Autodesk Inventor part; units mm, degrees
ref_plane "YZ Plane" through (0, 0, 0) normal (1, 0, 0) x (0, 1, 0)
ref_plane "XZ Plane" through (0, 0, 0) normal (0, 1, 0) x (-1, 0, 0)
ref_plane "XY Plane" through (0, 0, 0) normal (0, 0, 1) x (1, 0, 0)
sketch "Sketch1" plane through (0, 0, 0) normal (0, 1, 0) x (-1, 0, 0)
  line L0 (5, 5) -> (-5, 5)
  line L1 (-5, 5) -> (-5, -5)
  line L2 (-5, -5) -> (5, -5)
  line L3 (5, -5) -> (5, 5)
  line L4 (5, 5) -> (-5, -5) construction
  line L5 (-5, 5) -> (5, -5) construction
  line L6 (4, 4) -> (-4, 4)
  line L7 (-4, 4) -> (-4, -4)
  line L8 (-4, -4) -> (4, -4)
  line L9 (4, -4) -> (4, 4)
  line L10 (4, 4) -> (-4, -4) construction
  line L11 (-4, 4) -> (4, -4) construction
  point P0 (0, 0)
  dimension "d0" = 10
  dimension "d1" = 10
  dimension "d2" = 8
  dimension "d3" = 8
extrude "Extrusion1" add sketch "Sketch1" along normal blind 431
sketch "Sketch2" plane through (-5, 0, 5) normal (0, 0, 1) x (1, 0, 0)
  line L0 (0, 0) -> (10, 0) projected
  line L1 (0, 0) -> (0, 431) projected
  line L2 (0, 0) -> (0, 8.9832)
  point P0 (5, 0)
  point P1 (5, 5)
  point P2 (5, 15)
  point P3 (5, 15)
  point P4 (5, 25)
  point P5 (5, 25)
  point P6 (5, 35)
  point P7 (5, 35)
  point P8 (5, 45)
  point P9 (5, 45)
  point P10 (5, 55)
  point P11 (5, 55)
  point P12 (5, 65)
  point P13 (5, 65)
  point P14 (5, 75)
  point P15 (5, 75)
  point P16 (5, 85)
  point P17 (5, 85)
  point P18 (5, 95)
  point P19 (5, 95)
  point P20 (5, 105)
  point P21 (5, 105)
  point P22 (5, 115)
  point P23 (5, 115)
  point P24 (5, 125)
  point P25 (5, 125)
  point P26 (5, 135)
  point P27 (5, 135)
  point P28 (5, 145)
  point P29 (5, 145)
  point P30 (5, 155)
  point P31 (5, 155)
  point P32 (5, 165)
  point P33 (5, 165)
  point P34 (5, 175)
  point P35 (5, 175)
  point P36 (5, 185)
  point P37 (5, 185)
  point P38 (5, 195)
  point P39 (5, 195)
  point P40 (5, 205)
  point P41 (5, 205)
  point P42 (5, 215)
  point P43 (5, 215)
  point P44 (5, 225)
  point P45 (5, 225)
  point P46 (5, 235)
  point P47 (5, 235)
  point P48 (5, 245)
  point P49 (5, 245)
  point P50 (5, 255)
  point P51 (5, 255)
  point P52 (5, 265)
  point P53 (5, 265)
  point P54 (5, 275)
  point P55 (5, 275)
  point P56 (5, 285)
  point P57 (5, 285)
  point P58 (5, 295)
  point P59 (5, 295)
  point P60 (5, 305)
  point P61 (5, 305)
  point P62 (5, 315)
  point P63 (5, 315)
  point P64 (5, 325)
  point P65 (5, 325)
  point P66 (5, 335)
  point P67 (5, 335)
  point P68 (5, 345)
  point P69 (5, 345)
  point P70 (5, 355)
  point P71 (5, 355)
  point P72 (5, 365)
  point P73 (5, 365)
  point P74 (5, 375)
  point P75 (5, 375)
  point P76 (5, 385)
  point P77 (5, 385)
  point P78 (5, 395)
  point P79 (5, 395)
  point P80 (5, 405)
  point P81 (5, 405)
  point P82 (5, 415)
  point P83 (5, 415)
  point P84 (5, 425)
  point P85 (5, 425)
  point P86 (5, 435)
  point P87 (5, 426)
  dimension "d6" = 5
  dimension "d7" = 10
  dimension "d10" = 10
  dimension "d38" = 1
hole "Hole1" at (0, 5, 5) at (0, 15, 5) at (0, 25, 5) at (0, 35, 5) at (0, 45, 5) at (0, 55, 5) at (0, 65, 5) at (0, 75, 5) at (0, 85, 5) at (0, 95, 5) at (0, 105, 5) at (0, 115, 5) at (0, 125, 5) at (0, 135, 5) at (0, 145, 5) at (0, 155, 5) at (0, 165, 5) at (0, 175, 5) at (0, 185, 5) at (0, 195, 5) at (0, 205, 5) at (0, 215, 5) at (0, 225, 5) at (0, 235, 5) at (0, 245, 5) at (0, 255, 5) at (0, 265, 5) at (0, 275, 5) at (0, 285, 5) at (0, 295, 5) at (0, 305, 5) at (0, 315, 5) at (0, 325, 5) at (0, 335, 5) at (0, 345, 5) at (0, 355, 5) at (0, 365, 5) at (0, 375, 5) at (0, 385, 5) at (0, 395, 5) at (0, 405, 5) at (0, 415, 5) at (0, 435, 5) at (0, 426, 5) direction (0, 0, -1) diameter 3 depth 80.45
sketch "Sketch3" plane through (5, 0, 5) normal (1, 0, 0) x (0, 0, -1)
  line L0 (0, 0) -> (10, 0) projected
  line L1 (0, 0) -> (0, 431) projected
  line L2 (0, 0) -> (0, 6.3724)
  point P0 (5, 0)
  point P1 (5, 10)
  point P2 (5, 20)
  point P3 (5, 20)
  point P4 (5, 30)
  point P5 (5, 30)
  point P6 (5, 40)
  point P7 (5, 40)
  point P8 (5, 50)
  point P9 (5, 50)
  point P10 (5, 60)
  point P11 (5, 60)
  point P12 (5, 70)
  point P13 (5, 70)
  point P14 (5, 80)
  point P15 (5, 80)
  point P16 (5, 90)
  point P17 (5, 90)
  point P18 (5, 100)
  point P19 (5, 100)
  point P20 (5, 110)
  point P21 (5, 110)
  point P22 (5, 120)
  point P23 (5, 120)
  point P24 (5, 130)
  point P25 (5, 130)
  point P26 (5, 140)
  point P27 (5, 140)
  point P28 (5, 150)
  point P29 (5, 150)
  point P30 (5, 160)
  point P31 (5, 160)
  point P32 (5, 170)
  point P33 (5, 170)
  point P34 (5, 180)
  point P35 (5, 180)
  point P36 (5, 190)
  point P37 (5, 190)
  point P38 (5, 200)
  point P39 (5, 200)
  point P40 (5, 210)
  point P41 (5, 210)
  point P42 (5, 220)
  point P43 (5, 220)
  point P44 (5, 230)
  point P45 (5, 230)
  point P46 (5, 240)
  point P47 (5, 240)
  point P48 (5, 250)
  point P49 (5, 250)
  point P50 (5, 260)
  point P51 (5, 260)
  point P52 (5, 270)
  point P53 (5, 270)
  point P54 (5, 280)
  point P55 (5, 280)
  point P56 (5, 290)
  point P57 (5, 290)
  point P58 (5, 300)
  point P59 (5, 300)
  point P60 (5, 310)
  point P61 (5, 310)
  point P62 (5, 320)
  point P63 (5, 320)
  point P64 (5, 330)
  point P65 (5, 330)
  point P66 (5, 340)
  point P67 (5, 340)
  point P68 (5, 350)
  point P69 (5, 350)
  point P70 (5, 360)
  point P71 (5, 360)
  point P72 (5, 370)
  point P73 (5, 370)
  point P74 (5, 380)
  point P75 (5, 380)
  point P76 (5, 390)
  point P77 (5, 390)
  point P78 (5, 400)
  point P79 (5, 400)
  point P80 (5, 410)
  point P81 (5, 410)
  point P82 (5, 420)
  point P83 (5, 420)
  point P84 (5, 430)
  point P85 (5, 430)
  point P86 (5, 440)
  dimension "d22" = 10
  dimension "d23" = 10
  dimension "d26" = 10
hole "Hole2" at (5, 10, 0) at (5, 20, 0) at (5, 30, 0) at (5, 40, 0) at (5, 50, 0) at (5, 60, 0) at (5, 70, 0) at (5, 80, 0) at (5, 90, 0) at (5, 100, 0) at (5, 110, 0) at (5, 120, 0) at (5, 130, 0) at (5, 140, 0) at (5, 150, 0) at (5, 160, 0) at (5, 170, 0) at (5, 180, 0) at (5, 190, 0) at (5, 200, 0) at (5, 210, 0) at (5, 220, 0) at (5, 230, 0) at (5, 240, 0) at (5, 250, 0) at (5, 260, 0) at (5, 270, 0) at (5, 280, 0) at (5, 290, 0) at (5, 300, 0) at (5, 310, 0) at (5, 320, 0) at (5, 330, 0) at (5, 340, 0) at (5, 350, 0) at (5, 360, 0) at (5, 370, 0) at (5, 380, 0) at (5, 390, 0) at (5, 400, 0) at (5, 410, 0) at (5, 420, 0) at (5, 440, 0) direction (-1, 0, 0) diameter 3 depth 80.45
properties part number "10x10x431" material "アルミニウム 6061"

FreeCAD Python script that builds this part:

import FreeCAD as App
import Part
import Sketcher

V = App.Vector


def add_polygon(sketch, points):
    """Adds a closed chain of lines whose ends are joined by coincident constraints."""
    first, n = sketch.GeometryCount, len(points)
    for a, b in zip(points, points[1:] + points[:1]):
        sketch.addGeometry(Part.LineSegment(App.Vector(*a, 0), App.Vector(*b, 0)), False)
    for i in range(n):
        sketch.addConstraint(Sketcher.Constraint("Coincident", first + i, 2, first + (i + 1) % n, 1))

doc = App.newDocument("Part")
body = doc.addObject("PartDesign::Body", "Body")

# Sketch on XZ plane
sketch1 = body.newObject("Sketcher::SketchObject", "Sketch")
sketch1.AttachmentSupport = (doc.getObject("XZ_Plane"), [""])
sketch1.MapMode = "FlatFace"
add_polygon(sketch1, [(-5, -5), (-5, 5), (5, 5), (5, -5)])  # lines 0-3
add_polygon(sketch1, [(4, 4), (-4, 4), (-4, -4), (4, -4)])  # lines 4-7
sketch1.addConstraint(Sketcher.Constraint("Vertical", 0))
sketch1.addConstraint(Sketcher.Constraint("Horizontal", 1))
sketch1.addConstraint(Sketcher.Constraint("Vertical", 2))
sketch1.addConstraint(Sketcher.Constraint("Horizontal", 3))
sketch1.addConstraint(Sketcher.Constraint("Horizontal", 4))
sketch1.addConstraint(Sketcher.Constraint("Vertical", 5))
sketch1.addConstraint(Sketcher.Constraint("Horizontal", 6))
sketch1.addConstraint(Sketcher.Constraint("Vertical", 7))
sketch1.addConstraint(Sketcher.Constraint("Symmetric", 0, 2, 2, 2, -1, 1))
sketch1.addConstraint(Sketcher.Constraint("Symmetric", 4, 2, 6, 2, -1, 1))
sketch1.addConstraint(Sketcher.Constraint("Equal", 3, 0))
sketch1.addConstraint(Sketcher.Constraint("Equal", 6, 5))
sketch1.addConstraint(Sketcher.Constraint("DistanceX", 1, 1, 1, 2, 10.0))
sketch1.addConstraint(Sketcher.Constraint("DistanceX", 4, 2, 4, 1, 8.0))
pad1 = body.newObject("PartDesign::Pad", "Pad")
pad1.Profile = sketch1
pad1.Length = 431
pad1.Reversed = True

# Sketch on XY plane
sketch2 = body.newObject("Sketcher::SketchObject", "Sketch001")
sketch2.AttachmentSupport = (doc.getObject("XY_Plane"), [""])
sketch2.MapMode = "FlatFace"
sketch2.AttachmentOffset = App.Placement(V(0, 0, 5), App.Rotation())
sketch2.addGeometry(Part.Circle(V(0, 5, 0), V(0, 0, 1), 1.5), False)
sketch2.addGeometry(Part.Circle(V(0, 15, 0), V(0, 0, 1), 1.5), False)
sketch2.addGeometry(Part.Circle(V(0, 25, 0), V(0, 0, 1), 1.5), False)
sketch2.addGeometry(Part.Circle(V(0, 35, 0), V(0, 0, 1), 1.5), False)
sketch2.addGeometry(Part.Circle(V(0, 45, 0), V(0, 0, 1), 1.5), False)
sketch2.addGeometry(Part.Circle(V(0, 55, 0), V(0, 0, 1), 1.5), False)
sketch2.addGeometry(Part.Circle(V(0, 65, 0), V(0, 0, 1), 1.5), False)
sketch2.addGeometry(Part.Circle(V(0, 75, 0), V(0, 0, 1), 1.5), False)
sketch2.addGeometry(Part.Circle(V(0, 85, 0), V(0, 0, 1), 1.5), False)
sketch2.addGeometry(Part.Circle(V(0, 95, 0), V(0, 0, 1), 1.5), False)
sketch2.addGeometry(Part.Circle(V(0, 105, 0), V(0, 0, 1), 1.5), False)
sketch2.addGeometry(Part.Circle(V(0, 115, 0), V(0, 0, 1), 1.5), False)
sketch2.addGeometry(Part.Circle(V(0, 125, 0), V(0, 0, 1), 1.5), False)
sketch2.addGeometry(Part.Circle(V(0, 135, 0), V(0, 0, 1), 1.5), False)
sketch2.addGeometry(Part.Circle(V(0, 145, 0), V(0, 0, 1), 1.5), False)
sketch2.addGeometry(Part.Circle(V(0, 155, 0), V(0, 0, 1), 1.5), False)
sketch2.addGeometry(Part.Circle(V(0, 165, 0), V(0, 0, 1), 1.5), False)
sketch2.addGeometry(Part.Circle(V(0, 175, 0), V(0, 0, 1), 1.5), False)
sketch2.addGeometry(Part.Circle(V(0, 185, 0), V(0, 0, 1), 1.5), False)
sketch2.addGeometry(Part.Circle(V(0, 195, 0), V(0, 0, 1), 1.5), False)
sketch2.addGeometry(Part.Circle(V(0, 205, 0), V(0, 0, 1), 1.5), False)
sketch2.addGeometry(Part.Circle(V(0, 215, 0), V(0, 0, 1), 1.5), False)
sketch2.addGeometry(Part.Circle(V(0, 225, 0), V(0, 0, 1), 1.5), False)
sketch2.addGeometry(Part.Circle(V(0, 235, 0), V(0, 0, 1), 1.5), False)
sketch2.addGeometry(Part.Circle(V(0, 245, 0), V(0, 0, 1), 1.5), False)
sketch2.addGeometry(Part.Circle(V(0, 255, 0), V(0, 0, 1), 1.5), False)
sketch2.addGeometry(Part.Circle(V(0, 265, 0), V(0, 0, 1), 1.5), False)
sketch2.addGeometry(Part.Circle(V(0, 275, 0), V(0, 0, 1), 1.5), False)
sketch2.addGeometry(Part.Circle(V(0, 285, 0), V(0, 0, 1), 1.5), False)
sketch2.addGeometry(Part.Circle(V(0, 295, 0), V(0, 0, 1), 1.5), False)
sketch2.addGeometry(Part.Circle(V(0, 305, 0), V(0, 0, 1), 1.5), False)
sketch2.addGeometry(Part.Circle(V(0, 315, 0), V(0, 0, 1), 1.5), False)
sketch2.addGeometry(Part.Circle(V(0, 325, 0), V(0, 0, 1), 1.5), False)
sketch2.addGeometry(Part.Circle(V(0, 335, 0), V(0, 0, 1), 1.5), False)
sketch2.addGeometry(Part.Circle(V(0, 345, 0), V(0, 0, 1), 1.5), False)
sketch2.addGeometry(Part.Circle(V(0, 355, 0), V(0, 0, 1), 1.5), False)
sketch2.addGeometry(Part.Circle(V(0, 365, 0), V(0, 0, 1), 1.5), False)
sketch2.addGeometry(Part.Circle(V(0, 375, 0), V(0, 0, 1), 1.5), False)
sketch2.addGeometry(Part.Circle(V(0, 385, 0), V(0, 0, 1), 1.5), False)
sketch2.addGeometry(Part.Circle(V(0, 395, 0), V(0, 0, 1), 1.5), False)
sketch2.addGeometry(Part.Circle(V(0, 405, 0), V(0, 0, 1), 1.5), False)
sketch2.addGeometry(Part.Circle(V(0, 415, 0), V(0, 0, 1), 1.5), False)
sketch2.addGeometry(Part.Circle(V(0, 435, 0), V(0, 0, 1), 1.5), False)
sketch2.addGeometry(Part.Circle(V(0, 426, 0), V(0, 0, 1), 1.5), False)
sketch2.addConstraint(Sketcher.Constraint("Equal", 0, 1))
sketch2.addConstraint(Sketcher.Constraint("Equal", 1, 2))
sketch2.addConstraint(Sketcher.Constraint("Equal", 2, 3))
sketch2.addConstraint(Sketcher.Constraint("Equal", 3, 4))
sketch2.addConstraint(Sketcher.Constraint("Equal", 4, 5))
sketch2.addConstraint(Sketcher.Constraint("Equal", 5, 6))
sketch2.addConstraint(Sketcher.Constraint("Equal", 6, 7))
sketch2.addConstraint(Sketcher.Constraint("Equal", 7, 8))
sketch2.addConstraint(Sketcher.Constraint("Equal", 8, 9))
sketch2.addConstraint(Sketcher.Constraint("Equal", 9, 10))
sketch2.addConstraint(Sketcher.Constraint("Equal", 10, 11))
sketch2.addConstraint(Sketcher.Constraint("Equal", 11, 12))
sketch2.addConstraint(Sketcher.Constraint("Equal", 12, 13))
sketch2.addConstraint(Sketcher.Constraint("Equal", 13, 14))
sketch2.addConstraint(Sketcher.Constraint("Equal", 14, 15))
sketch2.addConstraint(Sketcher.Constraint("Equal", 15, 16))
sketch2.addConstraint(Sketcher.Constraint("Equal", 16, 17))
sketch2.addConstraint(Sketcher.Constraint("Equal", 17, 18))
sketch2.addConstraint(Sketcher.Constraint("Equal", 18, 19))
sketch2.addConstraint(Sketcher.Constraint("Equal", 19, 20))
sketch2.addConstraint(Sketcher.Constraint("Equal", 20, 21))
sketch2.addConstraint(Sketcher.Constraint("Equal", 21, 22))
sketch2.addConstraint(Sketcher.Constraint("Equal", 22, 23))
sketch2.addConstraint(Sketcher.Constraint("Equal", 23, 24))
sketch2.addConstraint(Sketcher.Constraint("Equal", 24, 25))
sketch2.addConstraint(Sketcher.Constraint("Equal", 25, 26))
sketch2.addConstraint(Sketcher.Constraint("Equal", 26, 27))
sketch2.addConstraint(Sketcher.Constraint("Equal", 27, 28))
sketch2.addConstraint(Sketcher.Constraint("Equal", 28, 29))
sketch2.addConstraint(Sketcher.Constraint("Equal", 29, 30))
sketch2.addConstraint(Sketcher.Constraint("Equal", 30, 31))
sketch2.addConstraint(Sketcher.Constraint("Equal", 31, 32))
sketch2.addConstraint(Sketcher.Constraint("Equal", 32, 33))
sketch2.addConstraint(Sketcher.Constraint("Equal", 33, 34))
sketch2.addConstraint(Sketcher.Constraint("Equal", 34, 35))
sketch2.addConstraint(Sketcher.Constraint("Equal", 35, 36))
sketch2.addConstraint(Sketcher.Constraint("Equal", 36, 37))
sketch2.addConstraint(Sketcher.Constraint("Equal", 37, 38))
sketch2.addConstraint(Sketcher.Constraint("Equal", 38, 39))
sketch2.addConstraint(Sketcher.Constraint("Equal", 39, 40))
sketch2.addConstraint(Sketcher.Constraint("Equal", 40, 41))
sketch2.addConstraint(Sketcher.Constraint("Equal", 41, 42))
sketch2.addConstraint(Sketcher.Constraint("Equal", 42, 43))
sketch2.addConstraint(Sketcher.Constraint("PointOnObject", 0, 3, -2))
sketch2.addConstraint(Sketcher.Constraint("PointOnObject", 1, 3, -2))
sketch2.addConstraint(Sketcher.Constraint("PointOnObject", 2, 3, -2))
sketch2.addConstraint(Sketcher.Constraint("PointOnObject", 3, 3, -2))
sketch2.addConstraint(Sketcher.Constraint("PointOnObject", 4, 3, -2))
sketch2.addConstraint(Sketcher.Constraint("PointOnObject", 5, 3, -2))
sketch2.addConstraint(Sketcher.Constraint("PointOnObject", 6, 3, -2))
sketch2.addConstraint(Sketcher.Constraint("PointOnObject", 7, 3, -2))
sketch2.addConstraint(Sketcher.Constraint("PointOnObject", 8, 3, -2))
sketch2.addConstraint(Sketcher.Constraint("PointOnObject", 9, 3, -2))
sketch2.addConstraint(Sketcher.Constraint("PointOnObject", 10, 3, -2))
sketch2.addConstraint(Sketcher.Constraint("PointOnObject", 11, 3, -2))
sketch2.addConstraint(Sketcher.Constraint("PointOnObject", 12, 3, -2))
sketch2.addConstraint(Sketcher.Constraint("PointOnObject", 13, 3, -2))
sketch2.addConstraint(Sketcher.Constraint("PointOnObject", 14, 3, -2))
sketch2.addConstraint(Sketcher.Constraint("PointOnObject", 15, 3, -2))
sketch2.addConstraint(Sketcher.Constraint("PointOnObject", 16, 3, -2))
sketch2.addConstraint(Sketcher.Constraint("PointOnObject", 17, 3, -2))
sketch2.addConstraint(Sketcher.Constraint("PointOnObject", 18, 3, -2))
sketch2.addConstraint(Sketcher.Constraint("PointOnObject", 19, 3, -2))
sketch2.addConstraint(Sketcher.Constraint("PointOnObject", 20, 3, -2))
sketch2.addConstraint(Sketcher.Constraint("PointOnObject", 21, 3, -2))
sketch2.addConstraint(Sketcher.Constraint("PointOnObject", 22, 3, -2))
sketch2.addConstraint(Sketcher.Constraint("PointOnObject", 23, 3, -2))
sketch2.addConstraint(Sketcher.Constraint("PointOnObject", 24, 3, -2))
sketch2.addConstraint(Sketcher.Constraint("PointOnObject", 25, 3, -2))
sketch2.addConstraint(Sketcher.Constraint("PointOnObject", 26, 3, -2))
sketch2.addConstraint(Sketcher.Constraint("PointOnObject", 27, 3, -2))
sketch2.addConstraint(Sketcher.Constraint("PointOnObject", 28, 3, -2))
sketch2.addConstraint(Sketcher.Constraint("PointOnObject", 29, 3, -2))
sketch2.addConstraint(Sketcher.Constraint("PointOnObject", 30, 3, -2))
sketch2.addConstraint(Sketcher.Constraint("PointOnObject", 31, 3, -2))
sketch2.addConstraint(Sketcher.Constraint("PointOnObject", 32, 3, -2))
sketch2.addConstraint(Sketcher.Constraint("PointOnObject", 33, 3, -2))
sketch2.addConstraint(Sketcher.Constraint("PointOnObject", 34, 3, -2))
sketch2.addConstraint(Sketcher.Constraint("PointOnObject", 35, 3, -2))
sketch2.addConstraint(Sketcher.Constraint("PointOnObject", 36, 3, -2))
sketch2.addConstraint(Sketcher.Constraint("PointOnObject", 37, 3, -2))
sketch2.addConstraint(Sketcher.Constraint("PointOnObject", 38, 3, -2))
sketch2.addConstraint(Sketcher.Constraint("PointOnObject", 39, 3, -2))
sketch2.addConstraint(Sketcher.Constraint("PointOnObject", 40, 3, -2))
sketch2.addConstraint(Sketcher.Constraint("PointOnObject", 41, 3, -2))
sketch2.addConstraint(Sketcher.Constraint("PointOnObject", 42, 3, -2))
sketch2.addConstraint(Sketcher.Constraint("PointOnObject", 43, 3, -2))
sketch2.addConstraint(Sketcher.Constraint("Diameter", 0, 3.0))
sketch2.addConstraint(Sketcher.Constraint("DistanceY", -1, 1, 0, 3, 5.0))
sketch2.addConstraint(Sketcher.Constraint("DistanceY", -1, 1, 1, 3, 15.0))
sketch2.addConstraint(Sketcher.Constraint("DistanceY", -1, 1, 2, 3, 25.0))
sketch2.addConstraint(Sketcher.Constraint("DistanceY", -1, 1, 3, 3, 35.0))
sketch2.addConstraint(Sketcher.Constraint("DistanceY", -1, 1, 4, 3, 45.0))
sketch2.addConstraint(Sketcher.Constraint("DistanceY", -1, 1, 5, 3, 55.0))
sketch2.addConstraint(Sketcher.Constraint("DistanceY", -1, 1, 6, 3, 65.0))
sketch2.addConstraint(Sketcher.Constraint("DistanceY", -1, 1, 7, 3, 75.0))
sketch2.addConstraint(Sketcher.Constraint("DistanceY", -1, 1, 8, 3, 85.0))
sketch2.addConstraint(Sketcher.Constraint("DistanceY", -1, 1, 9, 3, 95.0))
sketch2.addConstraint(Sketcher.Constraint("DistanceY", -1, 1, 10, 3, 105.0))
sketch2.addConstraint(Sketcher.Constraint("DistanceY", -1, 1, 11, 3, 115.0))
sketch2.addConstraint(Sketcher.Constraint("DistanceY", -1, 1, 12, 3, 125.0))
sketch2.addConstraint(Sketcher.Constraint("DistanceY", -1, 1, 13, 3, 135.0))
sketch2.addConstraint(Sketcher.Constraint("DistanceY", -1, 1, 14, 3, 145.0))
sketch2.addConstraint(Sketcher.Constraint("DistanceY", -1, 1, 15, 3, 155.0))
sketch2.addConstraint(Sketcher.Constraint("DistanceY", -1, 1, 16, 3, 165.0))
sketch2.addConstraint(Sketcher.Constraint("DistanceY", -1, 1, 17, 3, 175.0))
sketch2.addConstraint(Sketcher.Constraint("DistanceY", -1, 1, 18, 3, 185.0))
sketch2.addConstraint(Sketcher.Constraint("DistanceY", -1, 1, 19, 3, 195.0))
sketch2.addConstraint(Sketcher.Constraint("DistanceY", -1, 1, 20, 3, 205.0))
sketch2.addConstraint(Sketcher.Constraint("DistanceY", -1, 1, 21, 3, 215.0))
sketch2.addConstraint(Sketcher.Constraint("DistanceY", -1, 1, 22, 3, 225.0))
sketch2.addConstraint(Sketcher.Constraint("DistanceY", -1, 1, 23, 3, 235.0))
sketch2.addConstraint(Sketcher.Constraint("DistanceY", -1, 1, 24, 3, 245.0))
sketch2.addConstraint(Sketcher.Constraint("DistanceY", -1, 1, 25, 3, 255.0))
sketch2.addConstraint(Sketcher.Constraint("DistanceY", -1, 1, 26, 3, 265.0))
sketch2.addConstraint(Sketcher.Constraint("DistanceY", -1, 1, 27, 3, 275.0))
sketch2.addConstraint(Sketcher.Constraint("DistanceY", -1, 1, 28, 3, 285.0))
sketch2.addConstraint(Sketcher.Constraint("DistanceY", -1, 1, 29, 3, 295.0))
sketch2.addConstraint(Sketcher.Constraint("DistanceY", -1, 1, 30, 3, 305.0))
sketch2.addConstraint(Sketcher.Constraint("DistanceY", -1, 1, 31, 3, 315.0))
sketch2.addConstraint(Sketcher.Constraint("DistanceY", -1, 1, 32, 3, 325.0))
sketch2.addConstraint(Sketcher.Constraint("DistanceY", -1, 1, 33, 3, 335.0))
sketch2.addConstraint(Sketcher.Constraint("DistanceY", -1, 1, 34, 3, 345.0))
sketch2.addConstraint(Sketcher.Constraint("DistanceY", -1, 1, 35, 3, 355.0))
sketch2.addConstraint(Sketcher.Constraint("DistanceY", -1, 1, 36, 3, 365.0))
sketch2.addConstraint(Sketcher.Constraint("DistanceY", -1, 1, 37, 3, 375.0))
sketch2.addConstraint(Sketcher.Constraint("DistanceY", -1, 1, 38, 3, 385.0))
sketch2.addConstraint(Sketcher.Constraint("DistanceY", -1, 1, 39, 3, 395.0))
sketch2.addConstraint(Sketcher.Constraint("DistanceY", -1, 1, 40, 3, 405.0))
sketch2.addConstraint(Sketcher.Constraint("DistanceY", -1, 1, 41, 3, 415.0))
sketch2.addConstraint(Sketcher.Constraint("DistanceY", -1, 1, 42, 3, 435.0))
sketch2.addConstraint(Sketcher.Constraint("DistanceY", -1, 1, 43, 3, 426.0))
doc.recompute()
hole = body.newObject("PartDesign::Hole", "Hole")
hole.Profile = sketch2
hole.ThreadType = "None"
hole.Diameter = 3
hole.DepthType = "Dimension"
hole.Depth = 80.45
hole.DrillPoint = "Flat"

# Sketch on YZ plane
sketch3 = body.newObject("Sketcher::SketchObject", "Sketch002")
sketch3.AttachmentSupport = (doc.getObject("YZ_Plane"), [""])
sketch3.MapMode = "FlatFace"
sketch3.AttachmentOffset = App.Placement(V(0, 0, 5), App.Rotation())
sketch3.addGeometry(Part.Circle(V(10, 0, 0), V(0, 0, 1), 1.5), False)
sketch3.addGeometry(Part.Circle(V(20, 0, 0), V(0, 0, 1), 1.5), False)
sketch3.addGeometry(Part.Circle(V(30, 0, 0), V(0, 0, 1), 1.5), False)
sketch3.addGeometry(Part.Circle(V(40, 0, 0), V(0, 0, 1), 1.5), False)
sketch3.addGeometry(Part.Circle(V(50, 0, 0), V(0, 0, 1), 1.5), False)
sketch3.addGeometry(Part.Circle(V(60, 0, 0), V(0, 0, 1), 1.5), False)
sketch3.addGeometry(Part.Circle(V(70, 0, 0), V(0, 0, 1), 1.5), False)
sketch3.addGeometry(Part.Circle(V(80, 0, 0), V(0, 0, 1), 1.5), False)
sketch3.addGeometry(Part.Circle(V(90, 0, 0), V(0, 0, 1), 1.5), False)
sketch3.addGeometry(Part.Circle(V(100, 0, 0), V(0, 0, 1), 1.5), False)
sketch3.addGeometry(Part.Circle(V(110, 0, 0), V(0, 0, 1), 1.5), False)
sketch3.addGeometry(Part.Circle(V(120, 0, 0), V(0, 0, 1), 1.5), False)
sketch3.addGeometry(Part.Circle(V(130, 0, 0), V(0, 0, 1), 1.5), False)
sketch3.addGeometry(Part.Circle(V(140, 0, 0), V(0, 0, 1), 1.5), False)
sketch3.addGeometry(Part.Circle(V(150, 0, 0), V(0, 0, 1), 1.5), False)
sketch3.addGeometry(Part.Circle(V(160, 0, 0), V(0, 0, 1), 1.5), False)
sketch3.addGeometry(Part.Circle(V(170, 0, 0), V(0, 0, 1), 1.5), False)
sketch3.addGeometry(Part.Circle(V(180, 0, 0), V(0, 0, 1), 1.5), False)
sketch3.addGeometry(Part.Circle(V(190, 0, 0), V(0, 0, 1), 1.5), False)
sketch3.addGeometry(Part.Circle(V(200, 0, 0), V(0, 0, 1), 1.5), False)
sketch3.addGeometry(Part.Circle(V(210, 0, 0), V(0, 0, 1), 1.5), False)
sketch3.addGeometry(Part.Circle(V(220, 0, 0), V(0, 0, 1), 1.5), False)
sketch3.addGeometry(Part.Circle(V(230, 0, 0), V(0, 0, 1), 1.5), False)
sketch3.addGeometry(Part.Circle(V(240, 0, 0), V(0, 0, 1), 1.5), False)
sketch3.addGeometry(Part.Circle(V(250, 0, 0), V(0, 0, 1), 1.5), False)
sketch3.addGeometry(Part.Circle(V(260, 0, 0), V(0, 0, 1), 1.5), False)
sketch3.addGeometry(Part.Circle(V(270, 0, 0), V(0, 0, 1), 1.5), False)
sketch3.addGeometry(Part.Circle(V(280, 0, 0), V(0, 0, 1), 1.5), False)
sketch3.addGeometry(Part.Circle(V(290, 0, 0), V(0, 0, 1), 1.5), False)
sketch3.addGeometry(Part.Circle(V(300, 0, 0), V(0, 0, 1), 1.5), False)
sketch3.addGeometry(Part.Circle(V(310, 0, 0), V(0, 0, 1), 1.5), False)
sketch3.addGeometry(Part.Circle(V(320, 0, 0), V(0, 0, 1), 1.5), False)
sketch3.addGeometry(Part.Circle(V(330, 0, 0), V(0, 0, 1), 1.5), False)
sketch3.addGeometry(Part.Circle(V(340, 0, 0), V(0, 0, 1), 1.5), False)
sketch3.addGeometry(Part.Circle(V(350, 0, 0), V(0, 0, 1), 1.5), False)
sketch3.addGeometry(Part.Circle(V(360, 0, 0), V(0, 0, 1), 1.5), False)
sketch3.addGeometry(Part.Circle(V(370, 0, 0), V(0, 0, 1), 1.5), False)
sketch3.addGeometry(Part.Circle(V(380, 0, 0), V(0, 0, 1), 1.5), False)
sketch3.addGeometry(Part.Circle(V(390, 0, 0), V(0, 0, 1), 1.5), False)
sketch3.addGeometry(Part.Circle(V(400, 0, 0), V(0, 0, 1), 1.5), False)
sketch3.addGeometry(Part.Circle(V(410, 0, 0), V(0, 0, 1), 1.5), False)
sketch3.addGeometry(Part.Circle(V(420, 0, 0), V(0, 0, 1), 1.5), False)
sketch3.addGeometry(Part.Circle(V(440, 0, 0), V(0, 0, 1), 1.5), False)
sketch3.addConstraint(Sketcher.Constraint("Equal", 0, 1))
sketch3.addConstraint(Sketcher.Constraint("Equal", 1, 2))
sketch3.addConstraint(Sketcher.Constraint("Equal", 2, 3))
sketch3.addConstraint(Sketcher.Constraint("Equal", 3, 4))
sketch3.addConstraint(Sketcher.Constraint("Equal", 4, 5))
sketch3.addConstraint(Sketcher.Constraint("Equal", 5, 6))
sketch3.addConstraint(Sketcher.Constraint("Equal", 6, 7))
sketch3.addConstraint(Sketcher.Constraint("Equal", 7, 8))
sketch3.addConstraint(Sketcher.Constraint("Equal", 8, 9))
sketch3.addConstraint(Sketcher.Constraint("Equal", 9, 10))
sketch3.addConstraint(Sketcher.Constraint("Equal", 10, 11))
sketch3.addConstraint(Sketcher.Constraint("Equal", 11, 12))
sketch3.addConstraint(Sketcher.Constraint("Equal", 12, 13))
sketch3.addConstraint(Sketcher.Constraint("Equal", 13, 14))
sketch3.addConstraint(Sketcher.Constraint("Equal", 14, 15))
sketch3.addConstraint(Sketcher.Constraint("Equal", 15, 16))
sketch3.addConstraint(Sketcher.Constraint("Equal", 16, 17))
sketch3.addConstraint(Sketcher.Constraint("Equal", 17, 18))
sketch3.addConstraint(Sketcher.Constraint("Equal", 18, 19))
sketch3.addConstraint(Sketcher.Constraint("Equal", 19, 20))
sketch3.addConstraint(Sketcher.Constraint("Equal", 20, 21))
sketch3.addConstraint(Sketcher.Constraint("Equal", 21, 22))
sketch3.addConstraint(Sketcher.Constraint("Equal", 22, 23))
sketch3.addConstraint(Sketcher.Constraint("Equal", 23, 24))
sketch3.addConstraint(Sketcher.Constraint("Equal", 24, 25))
sketch3.addConstraint(Sketcher.Constraint("Equal", 25, 26))
sketch3.addConstraint(Sketcher.Constraint("Equal", 26, 27))
sketch3.addConstraint(Sketcher.Constraint("Equal", 27, 28))
sketch3.addConstraint(Sketcher.Constraint("Equal", 28, 29))
sketch3.addConstraint(Sketcher.Constraint("Equal", 29, 30))
sketch3.addConstraint(Sketcher.Constraint("Equal", 30, 31))
sketch3.addConstraint(Sketcher.Constraint("Equal", 31, 32))
sketch3.addConstraint(Sketcher.Constraint("Equal", 32, 33))
sketch3.addConstraint(Sketcher.Constraint("Equal", 33, 34))
sketch3.addConstraint(Sketcher.Constraint("Equal", 34, 35))
sketch3.addConstraint(Sketcher.Constraint("Equal", 35, 36))
sketch3.addConstraint(Sketcher.Constraint("Equal", 36, 37))
sketch3.addConstraint(Sketcher.Constraint("Equal", 37, 38))
sketch3.addConstraint(Sketcher.Constraint("Equal", 38, 39))
sketch3.addConstraint(Sketcher.Constraint("Equal", 39, 40))
sketch3.addConstraint(Sketcher.Constraint("Equal", 40, 41))
sketch3.addConstraint(Sketcher.Constraint("Equal", 41, 42))
sketch3.addConstraint(Sketcher.Constraint("PointOnObject", 0, 3, -1))
sketch3.addConstraint(Sketcher.Constraint("PointOnObject", 1, 3, -1))
sketch3.addConstraint(Sketcher.Constraint("PointOnObject", 2, 3, -1))
sketch3.addConstraint(Sketcher.Constraint("PointOnObject", 3, 3, -1))
sketch3.addConstraint(Sketcher.Constraint("PointOnObject", 4, 3, -1))
sketch3.addConstraint(Sketcher.Constraint("PointOnObject", 5, 3, -1))
sketch3.addConstraint(Sketcher.Constraint("PointOnObject", 6, 3, -1))
sketch3.addConstraint(Sketcher.Constraint("PointOnObject", 7, 3, -1))
sketch3.addConstraint(Sketcher.Constraint("PointOnObject", 8, 3, -1))
sketch3.addConstraint(Sketcher.Constraint("PointOnObject", 9, 3, -1))
sketch3.addConstraint(Sketcher.Constraint("PointOnObject", 10, 3, -1))
sketch3.addConstraint(Sketcher.Constraint("PointOnObject", 11, 3, -1))
sketch3.addConstraint(Sketcher.Constraint("PointOnObject", 12, 3, -1))
sketch3.addConstraint(Sketcher.Constraint("PointOnObject", 13, 3, -1))
sketch3.addConstraint(Sketcher.Constraint("PointOnObject", 14, 3, -1))
sketch3.addConstraint(Sketcher.Constraint("PointOnObject", 15, 3, -1))
sketch3.addConstraint(Sketcher.Constraint("PointOnObject", 16, 3, -1))
sketch3.addConstraint(Sketcher.Constraint("PointOnObject", 17, 3, -1))
sketch3.addConstraint(Sketcher.Constraint("PointOnObject", 18, 3, -1))
sketch3.addConstraint(Sketcher.Constraint("PointOnObject", 19, 3, -1))
sketch3.addConstraint(Sketcher.Constraint("PointOnObject", 20, 3, -1))
sketch3.addConstraint(Sketcher.Constraint("PointOnObject", 21, 3, -1))
sketch3.addConstraint(Sketcher.Constraint("PointOnObject", 22, 3, -1))
sketch3.addConstraint(Sketcher.Constraint("PointOnObject", 23, 3, -1))
sketch3.addConstraint(Sketcher.Constraint("PointOnObject", 24, 3, -1))
sketch3.addConstraint(Sketcher.Constraint("PointOnObject", 25, 3, -1))
sketch3.addConstraint(Sketcher.Constraint("PointOnObject", 26, 3, -1))
sketch3.addConstraint(Sketcher.Constraint("PointOnObject", 27, 3, -1))
sketch3.addConstraint(Sketcher.Constraint("PointOnObject", 28, 3, -1))
sketch3.addConstraint(Sketcher.Constraint("PointOnObject", 29, 3, -1))
sketch3.addConstraint(Sketcher.Constraint("PointOnObject", 30, 3, -1))
sketch3.addConstraint(Sketcher.Constraint("PointOnObject", 31, 3, -1))
sketch3.addConstraint(Sketcher.Constraint("PointOnObject", 32, 3, -1))
sketch3.addConstraint(Sketcher.Constraint("PointOnObject", 33, 3, -1))
sketch3.addConstraint(Sketcher.Constraint("PointOnObject", 34, 3, -1))
sketch3.addConstraint(Sketcher.Constraint("PointOnObject", 35, 3, -1))
sketch3.addConstraint(Sketcher.Constraint("PointOnObject", 36, 3, -1))
sketch3.addConstraint(Sketcher.Constraint("PointOnObject", 37, 3, -1))
sketch3.addConstraint(Sketcher.Constraint("PointOnObject", 38, 3, -1))
sketch3.addConstraint(Sketcher.Constraint("PointOnObject", 39, 3, -1))
sketch3.addConstraint(Sketcher.Constraint("PointOnObject", 40, 3, -1))
sketch3.addConstraint(Sketcher.Constraint("PointOnObject", 41, 3, -1))
sketch3.addConstraint(Sketcher.Constraint("PointOnObject", 42, 3, -1))
sketch3.addConstraint(Sketcher.Constraint("Diameter", 0, 3.0))
sketch3.addConstraint(Sketcher.Constraint("DistanceX", -1, 1, 0, 3, 10.0))
sketch3.addConstraint(Sketcher.Constraint("DistanceX", -1, 1, 1, 3, 20.0))
sketch3.addConstraint(Sketcher.Constraint("DistanceX", -1, 1, 2, 3, 30.0))
sketch3.addConstraint(Sketcher.Constraint("DistanceX", -1, 1, 3, 3, 40.0))
sketch3.addConstraint(Sketcher.Constraint("DistanceX", -1, 1, 4, 3, 50.0))
sketch3.addConstraint(Sketcher.Constraint("DistanceX", -1, 1, 5, 3, 60.0))
sketch3.addConstraint(Sketcher.Constraint("DistanceX", -1, 1, 6, 3, 70.0))
sketch3.addConstraint(Sketcher.Constraint("DistanceX", -1, 1, 7, 3, 80.0))
sketch3.addConstraint(Sketcher.Constraint("DistanceX", -1, 1, 8, 3, 90.0))
sketch3.addConstraint(Sketcher.Constraint("DistanceX", -1, 1, 9, 3, 100.0))
sketch3.addConstraint(Sketcher.Constraint("DistanceX", -1, 1, 10, 3, 110.0))
sketch3.addConstraint(Sketcher.Constraint("DistanceX", -1, 1, 11, 3, 120.0))
sketch3.addConstraint(Sketcher.Constraint("DistanceX", -1, 1, 12, 3, 130.0))
sketch3.addConstraint(Sketcher.Constraint("DistanceX", -1, 1, 13, 3, 140.0))
sketch3.addConstraint(Sketcher.Constraint("DistanceX", -1, 1, 14, 3, 150.0))
sketch3.addConstraint(Sketcher.Constraint("DistanceX", -1, 1, 15, 3, 160.0))
sketch3.addConstraint(Sketcher.Constraint("DistanceX", -1, 1, 16, 3, 170.0))
sketch3.addConstraint(Sketcher.Constraint("DistanceX", -1, 1, 17, 3, 180.0))
sketch3.addConstraint(Sketcher.Constraint("DistanceX", -1, 1, 18, 3, 190.0))
sketch3.addConstraint(Sketcher.Constraint("DistanceX", -1, 1, 19, 3, 200.0))
sketch3.addConstraint(Sketcher.Constraint("DistanceX", -1, 1, 20, 3, 210.0))
sketch3.addConstraint(Sketcher.Constraint("DistanceX", -1, 1, 21, 3, 220.0))
sketch3.addConstraint(Sketcher.Constraint("DistanceX", -1, 1, 22, 3, 230.0))
sketch3.addConstraint(Sketcher.Constraint("DistanceX", -1, 1, 23, 3, 240.0))
sketch3.addConstraint(Sketcher.Constraint("DistanceX", -1, 1, 24, 3, 250.0))
sketch3.addConstraint(Sketcher.Constraint("DistanceX", -1, 1, 25, 3, 260.0))
sketch3.addConstraint(Sketcher.Constraint("DistanceX", -1, 1, 26, 3, 270.0))
sketch3.addConstraint(Sketcher.Constraint("DistanceX", -1, 1, 27, 3, 280.0))
sketch3.addConstraint(Sketcher.Constraint("DistanceX", -1, 1, 28, 3, 290.0))
sketch3.addConstraint(Sketcher.Constraint("DistanceX", -1, 1, 29, 3, 300.0))
sketch3.addConstraint(Sketcher.Constraint("DistanceX", -1, 1, 30, 3, 310.0))
sketch3.addConstraint(Sketcher.Constraint("DistanceX", -1, 1, 31, 3, 320.0))
sketch3.addConstraint(Sketcher.Constraint("DistanceX", -1, 1, 32, 3, 330.0))
sketch3.addConstraint(Sketcher.Constraint("DistanceX", -1, 1, 33, 3, 340.0))
sketch3.addConstraint(Sketcher.Constraint("DistanceX", -1, 1, 34, 3, 350.0))
sketch3.addConstraint(Sketcher.Constraint("DistanceX", -1, 1, 35, 3, 360.0))
sketch3.addConstraint(Sketcher.Constraint("DistanceX", -1, 1, 36, 3, 370.0))
sketch3.addConstraint(Sketcher.Constraint("DistanceX", -1, 1, 37, 3, 380.0))
sketch3.addConstraint(Sketcher.Constraint("DistanceX", -1, 1, 38, 3, 390.0))
sketch3.addConstraint(Sketcher.Constraint("DistanceX", -1, 1, 39, 3, 400.0))
sketch3.addConstraint(Sketcher.Constraint("DistanceX", -1, 1, 40, 3, 410.0))
sketch3.addConstraint(Sketcher.Constraint("DistanceX", -1, 1, 41, 3, 420.0))
sketch3.addConstraint(Sketcher.Constraint("DistanceX", -1, 1, 42, 3, 440.0))
doc.recompute()
hole2 = body.newObject("PartDesign::Hole", "Hole001")
hole2.Profile = sketch3
hole2.ThreadType = "None"
hole2.Diameter = 3
hole2.DepthType = "Dimension"
hole2.Depth = 80.45
hole2.DrillPoint = "Flat"

doc.recompute()
